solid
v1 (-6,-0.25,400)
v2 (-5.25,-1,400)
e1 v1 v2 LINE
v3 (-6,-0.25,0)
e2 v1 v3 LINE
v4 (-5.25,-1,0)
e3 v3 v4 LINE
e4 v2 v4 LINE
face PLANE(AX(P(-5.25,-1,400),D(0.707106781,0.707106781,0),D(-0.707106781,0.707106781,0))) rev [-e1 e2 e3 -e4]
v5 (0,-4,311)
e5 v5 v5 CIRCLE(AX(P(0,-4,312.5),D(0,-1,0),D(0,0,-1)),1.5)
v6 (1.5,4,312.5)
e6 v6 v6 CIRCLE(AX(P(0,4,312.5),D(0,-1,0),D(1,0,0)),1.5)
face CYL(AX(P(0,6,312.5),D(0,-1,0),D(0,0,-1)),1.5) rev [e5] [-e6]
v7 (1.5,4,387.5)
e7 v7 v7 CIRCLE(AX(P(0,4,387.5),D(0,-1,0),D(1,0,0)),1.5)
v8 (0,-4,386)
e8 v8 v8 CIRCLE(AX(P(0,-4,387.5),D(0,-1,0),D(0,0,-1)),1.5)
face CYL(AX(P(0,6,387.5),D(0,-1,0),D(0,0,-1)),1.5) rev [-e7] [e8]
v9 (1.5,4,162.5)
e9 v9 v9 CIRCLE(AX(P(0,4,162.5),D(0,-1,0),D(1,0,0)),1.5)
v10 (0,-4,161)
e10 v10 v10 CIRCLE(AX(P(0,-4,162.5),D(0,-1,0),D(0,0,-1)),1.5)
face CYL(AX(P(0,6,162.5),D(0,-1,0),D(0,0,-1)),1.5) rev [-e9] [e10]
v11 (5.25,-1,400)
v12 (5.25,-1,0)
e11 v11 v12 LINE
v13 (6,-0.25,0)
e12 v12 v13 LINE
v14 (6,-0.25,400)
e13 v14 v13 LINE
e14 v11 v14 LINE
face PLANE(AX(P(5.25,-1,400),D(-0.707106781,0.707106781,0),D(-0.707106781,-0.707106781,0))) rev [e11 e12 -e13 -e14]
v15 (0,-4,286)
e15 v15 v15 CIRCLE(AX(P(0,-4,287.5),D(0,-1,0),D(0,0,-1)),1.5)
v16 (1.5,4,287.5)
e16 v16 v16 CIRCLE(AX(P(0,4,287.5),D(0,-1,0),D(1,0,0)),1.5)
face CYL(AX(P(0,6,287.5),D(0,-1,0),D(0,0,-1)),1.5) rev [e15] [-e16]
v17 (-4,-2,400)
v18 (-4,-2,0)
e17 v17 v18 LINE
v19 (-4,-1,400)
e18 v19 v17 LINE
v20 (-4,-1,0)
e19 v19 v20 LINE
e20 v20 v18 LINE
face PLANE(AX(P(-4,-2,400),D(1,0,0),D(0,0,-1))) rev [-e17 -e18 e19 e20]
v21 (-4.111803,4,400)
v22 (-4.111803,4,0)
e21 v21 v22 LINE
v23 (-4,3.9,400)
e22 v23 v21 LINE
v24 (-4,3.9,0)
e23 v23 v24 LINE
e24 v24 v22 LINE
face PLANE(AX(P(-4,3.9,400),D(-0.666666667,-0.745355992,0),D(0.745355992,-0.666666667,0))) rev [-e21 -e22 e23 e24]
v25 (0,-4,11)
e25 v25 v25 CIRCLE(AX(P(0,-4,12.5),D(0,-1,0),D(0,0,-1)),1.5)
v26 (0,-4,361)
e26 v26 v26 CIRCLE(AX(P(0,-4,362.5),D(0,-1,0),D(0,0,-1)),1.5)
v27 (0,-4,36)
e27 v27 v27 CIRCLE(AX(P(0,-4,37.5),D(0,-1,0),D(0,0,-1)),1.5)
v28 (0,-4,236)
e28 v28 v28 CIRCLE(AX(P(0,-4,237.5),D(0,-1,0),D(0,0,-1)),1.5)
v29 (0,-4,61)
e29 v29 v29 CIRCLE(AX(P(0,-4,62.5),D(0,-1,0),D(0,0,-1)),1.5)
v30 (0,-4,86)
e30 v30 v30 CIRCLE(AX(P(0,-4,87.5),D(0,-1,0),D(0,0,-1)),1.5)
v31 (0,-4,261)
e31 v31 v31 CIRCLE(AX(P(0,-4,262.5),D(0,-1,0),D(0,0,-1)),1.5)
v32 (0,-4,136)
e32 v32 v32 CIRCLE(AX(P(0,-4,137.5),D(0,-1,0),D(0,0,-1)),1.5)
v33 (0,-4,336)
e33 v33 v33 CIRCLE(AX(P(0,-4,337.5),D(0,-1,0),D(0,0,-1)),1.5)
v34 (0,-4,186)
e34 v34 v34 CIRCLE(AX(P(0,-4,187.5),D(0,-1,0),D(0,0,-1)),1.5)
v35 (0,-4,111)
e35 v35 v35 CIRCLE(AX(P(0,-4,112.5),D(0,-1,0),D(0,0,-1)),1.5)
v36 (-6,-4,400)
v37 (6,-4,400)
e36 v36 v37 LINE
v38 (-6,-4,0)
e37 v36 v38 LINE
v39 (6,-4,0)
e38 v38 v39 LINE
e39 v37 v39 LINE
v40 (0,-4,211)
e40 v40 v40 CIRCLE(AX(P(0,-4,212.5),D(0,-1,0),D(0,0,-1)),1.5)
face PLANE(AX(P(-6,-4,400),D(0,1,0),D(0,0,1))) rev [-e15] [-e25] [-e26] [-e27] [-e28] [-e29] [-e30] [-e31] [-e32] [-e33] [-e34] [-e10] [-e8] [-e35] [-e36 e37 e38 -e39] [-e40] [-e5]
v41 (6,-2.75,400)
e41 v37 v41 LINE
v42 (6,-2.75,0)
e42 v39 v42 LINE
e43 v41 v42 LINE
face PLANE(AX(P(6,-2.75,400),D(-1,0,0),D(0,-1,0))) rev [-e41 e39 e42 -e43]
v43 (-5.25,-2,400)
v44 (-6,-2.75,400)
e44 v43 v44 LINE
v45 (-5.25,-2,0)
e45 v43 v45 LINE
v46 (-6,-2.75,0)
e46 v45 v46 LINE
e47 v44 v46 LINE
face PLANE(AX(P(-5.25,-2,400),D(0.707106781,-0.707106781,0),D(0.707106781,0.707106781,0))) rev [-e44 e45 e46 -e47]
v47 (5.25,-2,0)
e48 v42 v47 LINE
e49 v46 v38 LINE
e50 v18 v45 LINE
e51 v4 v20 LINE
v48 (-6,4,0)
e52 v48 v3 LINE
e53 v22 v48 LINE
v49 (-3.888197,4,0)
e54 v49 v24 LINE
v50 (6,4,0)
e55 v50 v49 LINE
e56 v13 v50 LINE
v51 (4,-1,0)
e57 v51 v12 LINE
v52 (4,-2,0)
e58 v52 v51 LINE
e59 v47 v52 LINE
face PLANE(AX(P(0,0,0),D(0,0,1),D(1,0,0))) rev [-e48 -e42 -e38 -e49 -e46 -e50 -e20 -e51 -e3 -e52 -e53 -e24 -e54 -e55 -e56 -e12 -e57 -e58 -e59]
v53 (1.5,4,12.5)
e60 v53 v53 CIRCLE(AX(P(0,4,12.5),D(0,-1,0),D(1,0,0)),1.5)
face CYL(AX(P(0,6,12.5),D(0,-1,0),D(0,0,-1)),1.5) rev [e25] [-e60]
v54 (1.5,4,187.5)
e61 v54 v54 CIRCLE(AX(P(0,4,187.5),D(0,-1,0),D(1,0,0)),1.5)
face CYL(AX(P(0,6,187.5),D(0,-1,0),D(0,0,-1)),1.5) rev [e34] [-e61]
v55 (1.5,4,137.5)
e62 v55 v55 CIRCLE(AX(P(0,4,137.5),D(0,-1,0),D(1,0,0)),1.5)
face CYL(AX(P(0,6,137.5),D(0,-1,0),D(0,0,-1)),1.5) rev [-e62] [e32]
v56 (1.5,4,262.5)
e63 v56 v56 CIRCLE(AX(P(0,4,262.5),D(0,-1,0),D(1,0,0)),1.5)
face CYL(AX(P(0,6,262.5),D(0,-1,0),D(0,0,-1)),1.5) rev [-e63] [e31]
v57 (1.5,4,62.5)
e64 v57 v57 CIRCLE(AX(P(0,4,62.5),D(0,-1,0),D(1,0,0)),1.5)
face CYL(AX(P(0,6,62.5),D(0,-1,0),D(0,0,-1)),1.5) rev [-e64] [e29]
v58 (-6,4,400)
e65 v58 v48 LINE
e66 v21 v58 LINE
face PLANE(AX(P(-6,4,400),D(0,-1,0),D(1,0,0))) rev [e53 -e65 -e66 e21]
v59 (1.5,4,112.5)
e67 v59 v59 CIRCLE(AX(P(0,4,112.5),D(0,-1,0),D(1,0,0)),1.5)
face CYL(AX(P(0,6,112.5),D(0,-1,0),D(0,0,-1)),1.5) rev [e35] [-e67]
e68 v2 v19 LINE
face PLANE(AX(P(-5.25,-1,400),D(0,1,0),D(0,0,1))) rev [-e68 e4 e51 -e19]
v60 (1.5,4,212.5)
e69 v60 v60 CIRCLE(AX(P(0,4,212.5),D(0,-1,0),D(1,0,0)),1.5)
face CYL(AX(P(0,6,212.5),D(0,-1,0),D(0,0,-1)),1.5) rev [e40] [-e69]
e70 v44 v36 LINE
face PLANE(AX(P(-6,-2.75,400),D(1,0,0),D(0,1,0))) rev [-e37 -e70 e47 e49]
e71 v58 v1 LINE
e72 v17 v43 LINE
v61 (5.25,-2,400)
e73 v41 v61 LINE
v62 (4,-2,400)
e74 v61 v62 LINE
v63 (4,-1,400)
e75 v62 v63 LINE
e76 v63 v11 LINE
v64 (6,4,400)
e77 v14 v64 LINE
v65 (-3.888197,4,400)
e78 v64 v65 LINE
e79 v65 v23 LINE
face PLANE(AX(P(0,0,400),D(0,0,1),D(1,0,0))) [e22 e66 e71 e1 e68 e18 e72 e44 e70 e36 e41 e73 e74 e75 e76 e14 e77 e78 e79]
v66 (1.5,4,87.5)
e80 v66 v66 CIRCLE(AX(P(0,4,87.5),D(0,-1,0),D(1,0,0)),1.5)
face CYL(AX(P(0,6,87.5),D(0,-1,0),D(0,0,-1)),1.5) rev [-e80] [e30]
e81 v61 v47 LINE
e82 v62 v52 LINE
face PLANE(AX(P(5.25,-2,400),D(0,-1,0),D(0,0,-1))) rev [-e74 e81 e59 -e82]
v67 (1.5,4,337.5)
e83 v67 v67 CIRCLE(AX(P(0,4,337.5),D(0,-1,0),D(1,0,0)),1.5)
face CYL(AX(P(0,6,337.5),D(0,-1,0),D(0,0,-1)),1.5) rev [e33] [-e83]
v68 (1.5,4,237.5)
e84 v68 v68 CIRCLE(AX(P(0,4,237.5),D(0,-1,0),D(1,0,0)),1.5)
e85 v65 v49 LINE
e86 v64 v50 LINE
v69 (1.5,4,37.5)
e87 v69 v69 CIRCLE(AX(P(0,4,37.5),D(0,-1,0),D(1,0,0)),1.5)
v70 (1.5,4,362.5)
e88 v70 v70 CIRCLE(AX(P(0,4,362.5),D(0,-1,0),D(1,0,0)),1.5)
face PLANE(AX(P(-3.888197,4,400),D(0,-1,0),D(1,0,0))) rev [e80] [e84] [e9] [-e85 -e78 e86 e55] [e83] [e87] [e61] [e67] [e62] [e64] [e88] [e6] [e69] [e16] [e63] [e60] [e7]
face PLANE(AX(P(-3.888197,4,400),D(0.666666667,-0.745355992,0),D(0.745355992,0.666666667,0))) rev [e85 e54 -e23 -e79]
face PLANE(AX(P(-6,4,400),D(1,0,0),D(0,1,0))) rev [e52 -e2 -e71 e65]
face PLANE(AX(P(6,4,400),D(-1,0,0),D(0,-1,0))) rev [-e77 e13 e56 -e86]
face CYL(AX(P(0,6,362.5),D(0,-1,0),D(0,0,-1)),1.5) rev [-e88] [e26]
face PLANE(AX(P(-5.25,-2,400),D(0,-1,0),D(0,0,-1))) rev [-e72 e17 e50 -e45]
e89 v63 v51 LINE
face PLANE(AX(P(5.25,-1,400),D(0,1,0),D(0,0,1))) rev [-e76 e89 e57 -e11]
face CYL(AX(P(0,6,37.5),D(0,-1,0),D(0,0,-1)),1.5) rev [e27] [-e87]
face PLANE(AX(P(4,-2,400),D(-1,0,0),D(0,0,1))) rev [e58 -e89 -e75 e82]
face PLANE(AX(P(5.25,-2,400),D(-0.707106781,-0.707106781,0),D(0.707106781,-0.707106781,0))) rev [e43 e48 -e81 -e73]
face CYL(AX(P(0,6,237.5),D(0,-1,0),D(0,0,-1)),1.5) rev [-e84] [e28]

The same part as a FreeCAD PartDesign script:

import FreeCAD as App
import Part
import Sketcher

doc = App.newDocument("Part")
params = doc.addObject("Spreadsheet::Sheet", "Params")
for row, (alias, value) in enumerate([
    ("sketch1_width", "12 mm"),
    ("sketch1_height", "1 mm"),
    ("sketch1_width2", "1.25 mm"),
    ("sketch1_length", "0.15 mm"),
    ("pad1_length", "400 mm"),
    ("sketch2_diameter", "3 mm"),
    ("pocket1_length", "10 mm"),
    ("linearpattern_pitch", "25 mm"),
], start=1):
    params.set(f"A{row}", alias)
    params.set(f"B{row}", "=" + value)
    params.setAlias(f"B{row}", alias)

body = doc.addObject("PartDesign::Body", "Body")

sketch1 = doc.addObject("Sketcher::SketchObject", "Sketch")
body.addObject(sketch1)
sketch1.AttachmentSupport = (doc.XY_Plane, [""])
sketch1.MapMode = "FlatFace"
sketch1.addGeometry(Part.LineSegment(App.Vector(-6, -2.75, 0), App.Vector(-6, -4, 0)), False)
sketch1.addGeometry(Part.LineSegment(App.Vector(-6, -4, 0), App.Vector(6, -4, 0)), False)
sketch1.addGeometry(Part.LineSegment(App.Vector(6, -4, 0), App.Vector(6, -2.75, 0)), False)
sketch1.addGeometry(Part.LineSegment(App.Vector(6, -2.75, 0), App.Vector(5.25, -2, 0)), False)
sketch1.addGeometry(Part.LineSegment(App.Vector(5.25, -2, 0), App.Vector(4, -2, 0)), False)
sketch1.addGeometry(Part.LineSegment(App.Vector(4, -2, 0), App.Vector(4, -1, 0)), False)
sketch1.addGeometry(Part.LineSegment(App.Vector(4, -1, 0), App.Vector(5.25, -1, 0)), False)
sketch1.addGeometry(Part.LineSegment(App.Vector(5.25, -1, 0), App.Vector(6, -0.25, 0)), False)
sketch1.addGeometry(Part.LineSegment(App.Vector(6, -0.25, 0), App.Vector(6, 4, 0)), False)
sketch1.addGeometry(Part.LineSegment(App.Vector(6, 4, 0), App.Vector(-3.888197, 4, 0)), False)
sketch1.addGeometry(Part.LineSegment(App.Vector(-3.888197, 4, 0), App.Vector(-4, 3.9, 0)), False)
sketch1.addGeometry(Part.LineSegment(App.Vector(-4, 3.9, 0), App.Vector(-4.111803, 4, 0)), False)
sketch1.addGeometry(Part.LineSegment(App.Vector(-4.111803, 4, 0), App.Vector(-6, 4, 0)), False)
sketch1.addGeometry(Part.LineSegment(App.Vector(-6, 4, 0), App.Vector(-6, -0.25, 0)), False)
sketch1.addGeometry(Part.LineSegment(App.Vector(-6, -0.25, 0), App.Vector(-5.25, -1, 0)), False)
sketch1.addGeometry(Part.LineSegment(App.Vector(-5.25, -1, 0), App.Vector(-4, -1, 0)), False)
sketch1.addGeometry(Part.LineSegment(App.Vector(-4, -1, 0), App.Vector(-4, -2, 0)), False)
sketch1.addGeometry(Part.LineSegment(App.Vector(-4, -2, 0), App.Vector(-5.25, -2, 0)), False)
sketch1.addGeometry(Part.LineSegment(App.Vector(-5.25, -2, 0), App.Vector(-6, -2.75, 0)), False)
sketch1.addConstraint(Sketcher.Constraint("Coincident", 0, 2, 1, 1))
sketch1.addConstraint(Sketcher.Constraint("Coincident", 1, 2, 2, 1))
sketch1.addConstraint(Sketcher.Constraint("Coincident", 2, 2, 3, 1))
sketch1.addConstraint(Sketcher.Constraint("Coincident", 3, 2, 4, 1))
sketch1.addConstraint(Sketcher.Constraint("Coincident", 4, 2, 5, 1))
sketch1.addConstraint(Sketcher.Constraint("Coincident", 5, 2, 6, 1))
sketch1.addConstraint(Sketcher.Constraint("Coincident", 6, 2, 7, 1))
sketch1.addConstraint(Sketcher.Constraint("Coincident", 7, 2, 8, 1))
sketch1.addConstraint(Sketcher.Constraint("Coincident", 8, 2, 9, 1))
sketch1.addConstraint(Sketcher.Constraint("Coincident", 9, 2, 10, 1))
sketch1.addConstraint(Sketcher.Constraint("Coincident", 10, 2, 11, 1))
sketch1.addConstraint(Sketcher.Constraint("Coincident", 11, 2, 12, 1))
sketch1.addConstraint(Sketcher.Constraint("Coincident", 12, 2, 13, 1))
sketch1.addConstraint(Sketcher.Constraint("Coincident", 13, 2, 14, 1))
sketch1.addConstraint(Sketcher.Constraint("Coincident", 14, 2, 15, 1))
sketch1.addConstraint(Sketcher.Constraint("Coincident", 15, 2, 16, 1))
sketch1.addConstraint(Sketcher.Constraint("Coincident", 16, 2, 17, 1))
sketch1.addConstraint(Sketcher.Constraint("Coincident", 17, 2, 18, 1))
sketch1.addConstraint(Sketcher.Constraint("Coincident", 18, 2, 0, 1))
sketch1.addConstraint(Sketcher.Constraint("Vertical", 0))
sketch1.addConstraint(Sketcher.Constraint("Horizontal", 1))
sketch1.addConstraint(Sketcher.Constraint("Vertical", 2))
sketch1.addConstraint(Sketcher.Constraint("Horizontal", 4))
sketch1.addConstraint(Sketcher.Constraint("Vertical", 5))
sketch1.addConstraint(Sketcher.Constraint("Horizontal", 6))
sketch1.addConstraint(Sketcher.Constraint("Vertical", 8))
sketch1.addConstraint(Sketcher.Constraint("Horizontal", 9))
sketch1.addConstraint(Sketcher.Constraint("Horizontal", 12))
sketch1.addConstraint(Sketcher.Constraint("Vertical", 13))
sketch1.addConstraint(Sketcher.Constraint("Horizontal", 15))
sketch1.addConstraint(Sketcher.Constraint("Vertical", 16))
sketch1.addConstraint(Sketcher.Constraint("Horizontal", 17))
sketch1.addConstraint(Sketcher.Constraint("Symmetric", 0, 2, 8, 2, -1, 1))
sketch1.addConstraint(Sketcher.Constraint("Symmetric", 1, 2, 12, 2, -1, 1))
sketch1.addConstraint(Sketcher.Constraint("Symmetric", 7, 2, 13, 2, -2))
sketch1.addConstraint(Sketcher.Constraint("Symmetric", 6, 2, 14, 2, -2))
sketch1.addConstraint(Sketcher.Constraint("Symmetric", 4, 2, 16, 2, -2))
sketch1.addConstraint(Sketcher.Constraint("Perpendicular", 3, 7))
sketch1.addConstraint(Sketcher.Constraint("Perpendicular", 7, 14))
sketch1.addConstraint(Sketcher.Constraint("Perpendicular", 14, 18))
sketch1.addConstraint(Sketcher.Constraint("Horizontal", 2, 2, 18, 2))
sketch1.addConstraint(Sketcher.Constraint("Vertical", 3, 2, 6, 2))
sketch1.addConstraint(Sketcher.Constraint("Vertical", 10, 2, 15, 2))
sketch1.addConstraint(Sketcher.Constraint("Equal", 17, 0))
sketch1.addConstraint(Sketcher.Constraint("Equal", 10, 11))
sketch1.addConstraint(Sketcher.Constraint("DistanceX", 1, 1, 1, 2, 12.0))
sketch1.addConstraint(Sketcher.Constraint("DistanceY", 5, 1, 5, 2, 1.0))
sketch1.addConstraint(Sketcher.Constraint("DistanceY", 0, 2, -1, 1, 4.0))
sketch1.addConstraint(Sketcher.Constraint("DistanceY", 3, 2, -1, 1, 2.0))
sketch1.addConstraint(Sketcher.Constraint("DistanceX", 4, 2, 4, 1, 1.25))
sketch1.addConstraint(Sketcher.Constraint("DistanceY", -1, 1, 10, 2, 3.9))
sketch1.addConstraint(Sketcher.Constraint("Distance", 10, 0.15))
sketch1.setExpression("Constraints[45]", "Params.sketch1_width")
sketch1.setExpression("Constraints[46]", "Params.sketch1_height")
sketch1.setExpression("Constraints[49]", "Params.sketch1_width2")
sketch1.setExpression("Constraints[51]", "Params.sketch1_length")
pad1 = doc.addObject("PartDesign::Pad", "Pad")
body.addObject(pad1)
pad1.Profile = sketch1
pad1.setExpression("Length", "Params.pad1_length")

sketch2 = doc.addObject("Sketcher::SketchObject", "Sketch001")
body.addObject(sketch2)
sketch2.AttachmentSupport = (doc.XZ_Plane, [""])
sketch2.MapMode = "FlatFace"
sketch2.AttachmentOffset = App.Placement(App.Vector(0, 0, 4), App.Rotation())
sketch2.addGeometry(Part.Circle(App.Vector(0, 12.5, 0), App.Vector(0, 0, 1), 1.5), False)
sketch2.addConstraint(Sketcher.Constraint("PointOnObject", 0, 3, -2))
sketch2.addConstraint(Sketcher.Constraint("Diameter", 0, 3.0))
sketch2.addConstraint(Sketcher.Constraint("DistanceY", -1, 1, 0, 3, 12.5))
sketch2.setExpression("Constraints[1]", "Params.sketch2_diameter")
pocket1 = doc.addObject("PartDesign::Pocket", "Pocket")
body.addObject(pocket1)
pocket1.Profile = sketch2
pocket1.setExpression("Length", "Params.pocket1_length")
doc.recompute()

linearpattern = doc.addObject("PartDesign::LinearPattern", "LinearPattern")
body.addObject(linearpattern)
linearpattern.Originals = [pocket1]
linearpattern.Direction = (doc.Z_Axis, [""])
linearpattern.Mode = "offset"
linearpattern.setExpression("Offset", "Params.linearpattern_pitch")
linearpattern.Occurrences = 16
body.Tip = linearpattern

doc.recompute()
